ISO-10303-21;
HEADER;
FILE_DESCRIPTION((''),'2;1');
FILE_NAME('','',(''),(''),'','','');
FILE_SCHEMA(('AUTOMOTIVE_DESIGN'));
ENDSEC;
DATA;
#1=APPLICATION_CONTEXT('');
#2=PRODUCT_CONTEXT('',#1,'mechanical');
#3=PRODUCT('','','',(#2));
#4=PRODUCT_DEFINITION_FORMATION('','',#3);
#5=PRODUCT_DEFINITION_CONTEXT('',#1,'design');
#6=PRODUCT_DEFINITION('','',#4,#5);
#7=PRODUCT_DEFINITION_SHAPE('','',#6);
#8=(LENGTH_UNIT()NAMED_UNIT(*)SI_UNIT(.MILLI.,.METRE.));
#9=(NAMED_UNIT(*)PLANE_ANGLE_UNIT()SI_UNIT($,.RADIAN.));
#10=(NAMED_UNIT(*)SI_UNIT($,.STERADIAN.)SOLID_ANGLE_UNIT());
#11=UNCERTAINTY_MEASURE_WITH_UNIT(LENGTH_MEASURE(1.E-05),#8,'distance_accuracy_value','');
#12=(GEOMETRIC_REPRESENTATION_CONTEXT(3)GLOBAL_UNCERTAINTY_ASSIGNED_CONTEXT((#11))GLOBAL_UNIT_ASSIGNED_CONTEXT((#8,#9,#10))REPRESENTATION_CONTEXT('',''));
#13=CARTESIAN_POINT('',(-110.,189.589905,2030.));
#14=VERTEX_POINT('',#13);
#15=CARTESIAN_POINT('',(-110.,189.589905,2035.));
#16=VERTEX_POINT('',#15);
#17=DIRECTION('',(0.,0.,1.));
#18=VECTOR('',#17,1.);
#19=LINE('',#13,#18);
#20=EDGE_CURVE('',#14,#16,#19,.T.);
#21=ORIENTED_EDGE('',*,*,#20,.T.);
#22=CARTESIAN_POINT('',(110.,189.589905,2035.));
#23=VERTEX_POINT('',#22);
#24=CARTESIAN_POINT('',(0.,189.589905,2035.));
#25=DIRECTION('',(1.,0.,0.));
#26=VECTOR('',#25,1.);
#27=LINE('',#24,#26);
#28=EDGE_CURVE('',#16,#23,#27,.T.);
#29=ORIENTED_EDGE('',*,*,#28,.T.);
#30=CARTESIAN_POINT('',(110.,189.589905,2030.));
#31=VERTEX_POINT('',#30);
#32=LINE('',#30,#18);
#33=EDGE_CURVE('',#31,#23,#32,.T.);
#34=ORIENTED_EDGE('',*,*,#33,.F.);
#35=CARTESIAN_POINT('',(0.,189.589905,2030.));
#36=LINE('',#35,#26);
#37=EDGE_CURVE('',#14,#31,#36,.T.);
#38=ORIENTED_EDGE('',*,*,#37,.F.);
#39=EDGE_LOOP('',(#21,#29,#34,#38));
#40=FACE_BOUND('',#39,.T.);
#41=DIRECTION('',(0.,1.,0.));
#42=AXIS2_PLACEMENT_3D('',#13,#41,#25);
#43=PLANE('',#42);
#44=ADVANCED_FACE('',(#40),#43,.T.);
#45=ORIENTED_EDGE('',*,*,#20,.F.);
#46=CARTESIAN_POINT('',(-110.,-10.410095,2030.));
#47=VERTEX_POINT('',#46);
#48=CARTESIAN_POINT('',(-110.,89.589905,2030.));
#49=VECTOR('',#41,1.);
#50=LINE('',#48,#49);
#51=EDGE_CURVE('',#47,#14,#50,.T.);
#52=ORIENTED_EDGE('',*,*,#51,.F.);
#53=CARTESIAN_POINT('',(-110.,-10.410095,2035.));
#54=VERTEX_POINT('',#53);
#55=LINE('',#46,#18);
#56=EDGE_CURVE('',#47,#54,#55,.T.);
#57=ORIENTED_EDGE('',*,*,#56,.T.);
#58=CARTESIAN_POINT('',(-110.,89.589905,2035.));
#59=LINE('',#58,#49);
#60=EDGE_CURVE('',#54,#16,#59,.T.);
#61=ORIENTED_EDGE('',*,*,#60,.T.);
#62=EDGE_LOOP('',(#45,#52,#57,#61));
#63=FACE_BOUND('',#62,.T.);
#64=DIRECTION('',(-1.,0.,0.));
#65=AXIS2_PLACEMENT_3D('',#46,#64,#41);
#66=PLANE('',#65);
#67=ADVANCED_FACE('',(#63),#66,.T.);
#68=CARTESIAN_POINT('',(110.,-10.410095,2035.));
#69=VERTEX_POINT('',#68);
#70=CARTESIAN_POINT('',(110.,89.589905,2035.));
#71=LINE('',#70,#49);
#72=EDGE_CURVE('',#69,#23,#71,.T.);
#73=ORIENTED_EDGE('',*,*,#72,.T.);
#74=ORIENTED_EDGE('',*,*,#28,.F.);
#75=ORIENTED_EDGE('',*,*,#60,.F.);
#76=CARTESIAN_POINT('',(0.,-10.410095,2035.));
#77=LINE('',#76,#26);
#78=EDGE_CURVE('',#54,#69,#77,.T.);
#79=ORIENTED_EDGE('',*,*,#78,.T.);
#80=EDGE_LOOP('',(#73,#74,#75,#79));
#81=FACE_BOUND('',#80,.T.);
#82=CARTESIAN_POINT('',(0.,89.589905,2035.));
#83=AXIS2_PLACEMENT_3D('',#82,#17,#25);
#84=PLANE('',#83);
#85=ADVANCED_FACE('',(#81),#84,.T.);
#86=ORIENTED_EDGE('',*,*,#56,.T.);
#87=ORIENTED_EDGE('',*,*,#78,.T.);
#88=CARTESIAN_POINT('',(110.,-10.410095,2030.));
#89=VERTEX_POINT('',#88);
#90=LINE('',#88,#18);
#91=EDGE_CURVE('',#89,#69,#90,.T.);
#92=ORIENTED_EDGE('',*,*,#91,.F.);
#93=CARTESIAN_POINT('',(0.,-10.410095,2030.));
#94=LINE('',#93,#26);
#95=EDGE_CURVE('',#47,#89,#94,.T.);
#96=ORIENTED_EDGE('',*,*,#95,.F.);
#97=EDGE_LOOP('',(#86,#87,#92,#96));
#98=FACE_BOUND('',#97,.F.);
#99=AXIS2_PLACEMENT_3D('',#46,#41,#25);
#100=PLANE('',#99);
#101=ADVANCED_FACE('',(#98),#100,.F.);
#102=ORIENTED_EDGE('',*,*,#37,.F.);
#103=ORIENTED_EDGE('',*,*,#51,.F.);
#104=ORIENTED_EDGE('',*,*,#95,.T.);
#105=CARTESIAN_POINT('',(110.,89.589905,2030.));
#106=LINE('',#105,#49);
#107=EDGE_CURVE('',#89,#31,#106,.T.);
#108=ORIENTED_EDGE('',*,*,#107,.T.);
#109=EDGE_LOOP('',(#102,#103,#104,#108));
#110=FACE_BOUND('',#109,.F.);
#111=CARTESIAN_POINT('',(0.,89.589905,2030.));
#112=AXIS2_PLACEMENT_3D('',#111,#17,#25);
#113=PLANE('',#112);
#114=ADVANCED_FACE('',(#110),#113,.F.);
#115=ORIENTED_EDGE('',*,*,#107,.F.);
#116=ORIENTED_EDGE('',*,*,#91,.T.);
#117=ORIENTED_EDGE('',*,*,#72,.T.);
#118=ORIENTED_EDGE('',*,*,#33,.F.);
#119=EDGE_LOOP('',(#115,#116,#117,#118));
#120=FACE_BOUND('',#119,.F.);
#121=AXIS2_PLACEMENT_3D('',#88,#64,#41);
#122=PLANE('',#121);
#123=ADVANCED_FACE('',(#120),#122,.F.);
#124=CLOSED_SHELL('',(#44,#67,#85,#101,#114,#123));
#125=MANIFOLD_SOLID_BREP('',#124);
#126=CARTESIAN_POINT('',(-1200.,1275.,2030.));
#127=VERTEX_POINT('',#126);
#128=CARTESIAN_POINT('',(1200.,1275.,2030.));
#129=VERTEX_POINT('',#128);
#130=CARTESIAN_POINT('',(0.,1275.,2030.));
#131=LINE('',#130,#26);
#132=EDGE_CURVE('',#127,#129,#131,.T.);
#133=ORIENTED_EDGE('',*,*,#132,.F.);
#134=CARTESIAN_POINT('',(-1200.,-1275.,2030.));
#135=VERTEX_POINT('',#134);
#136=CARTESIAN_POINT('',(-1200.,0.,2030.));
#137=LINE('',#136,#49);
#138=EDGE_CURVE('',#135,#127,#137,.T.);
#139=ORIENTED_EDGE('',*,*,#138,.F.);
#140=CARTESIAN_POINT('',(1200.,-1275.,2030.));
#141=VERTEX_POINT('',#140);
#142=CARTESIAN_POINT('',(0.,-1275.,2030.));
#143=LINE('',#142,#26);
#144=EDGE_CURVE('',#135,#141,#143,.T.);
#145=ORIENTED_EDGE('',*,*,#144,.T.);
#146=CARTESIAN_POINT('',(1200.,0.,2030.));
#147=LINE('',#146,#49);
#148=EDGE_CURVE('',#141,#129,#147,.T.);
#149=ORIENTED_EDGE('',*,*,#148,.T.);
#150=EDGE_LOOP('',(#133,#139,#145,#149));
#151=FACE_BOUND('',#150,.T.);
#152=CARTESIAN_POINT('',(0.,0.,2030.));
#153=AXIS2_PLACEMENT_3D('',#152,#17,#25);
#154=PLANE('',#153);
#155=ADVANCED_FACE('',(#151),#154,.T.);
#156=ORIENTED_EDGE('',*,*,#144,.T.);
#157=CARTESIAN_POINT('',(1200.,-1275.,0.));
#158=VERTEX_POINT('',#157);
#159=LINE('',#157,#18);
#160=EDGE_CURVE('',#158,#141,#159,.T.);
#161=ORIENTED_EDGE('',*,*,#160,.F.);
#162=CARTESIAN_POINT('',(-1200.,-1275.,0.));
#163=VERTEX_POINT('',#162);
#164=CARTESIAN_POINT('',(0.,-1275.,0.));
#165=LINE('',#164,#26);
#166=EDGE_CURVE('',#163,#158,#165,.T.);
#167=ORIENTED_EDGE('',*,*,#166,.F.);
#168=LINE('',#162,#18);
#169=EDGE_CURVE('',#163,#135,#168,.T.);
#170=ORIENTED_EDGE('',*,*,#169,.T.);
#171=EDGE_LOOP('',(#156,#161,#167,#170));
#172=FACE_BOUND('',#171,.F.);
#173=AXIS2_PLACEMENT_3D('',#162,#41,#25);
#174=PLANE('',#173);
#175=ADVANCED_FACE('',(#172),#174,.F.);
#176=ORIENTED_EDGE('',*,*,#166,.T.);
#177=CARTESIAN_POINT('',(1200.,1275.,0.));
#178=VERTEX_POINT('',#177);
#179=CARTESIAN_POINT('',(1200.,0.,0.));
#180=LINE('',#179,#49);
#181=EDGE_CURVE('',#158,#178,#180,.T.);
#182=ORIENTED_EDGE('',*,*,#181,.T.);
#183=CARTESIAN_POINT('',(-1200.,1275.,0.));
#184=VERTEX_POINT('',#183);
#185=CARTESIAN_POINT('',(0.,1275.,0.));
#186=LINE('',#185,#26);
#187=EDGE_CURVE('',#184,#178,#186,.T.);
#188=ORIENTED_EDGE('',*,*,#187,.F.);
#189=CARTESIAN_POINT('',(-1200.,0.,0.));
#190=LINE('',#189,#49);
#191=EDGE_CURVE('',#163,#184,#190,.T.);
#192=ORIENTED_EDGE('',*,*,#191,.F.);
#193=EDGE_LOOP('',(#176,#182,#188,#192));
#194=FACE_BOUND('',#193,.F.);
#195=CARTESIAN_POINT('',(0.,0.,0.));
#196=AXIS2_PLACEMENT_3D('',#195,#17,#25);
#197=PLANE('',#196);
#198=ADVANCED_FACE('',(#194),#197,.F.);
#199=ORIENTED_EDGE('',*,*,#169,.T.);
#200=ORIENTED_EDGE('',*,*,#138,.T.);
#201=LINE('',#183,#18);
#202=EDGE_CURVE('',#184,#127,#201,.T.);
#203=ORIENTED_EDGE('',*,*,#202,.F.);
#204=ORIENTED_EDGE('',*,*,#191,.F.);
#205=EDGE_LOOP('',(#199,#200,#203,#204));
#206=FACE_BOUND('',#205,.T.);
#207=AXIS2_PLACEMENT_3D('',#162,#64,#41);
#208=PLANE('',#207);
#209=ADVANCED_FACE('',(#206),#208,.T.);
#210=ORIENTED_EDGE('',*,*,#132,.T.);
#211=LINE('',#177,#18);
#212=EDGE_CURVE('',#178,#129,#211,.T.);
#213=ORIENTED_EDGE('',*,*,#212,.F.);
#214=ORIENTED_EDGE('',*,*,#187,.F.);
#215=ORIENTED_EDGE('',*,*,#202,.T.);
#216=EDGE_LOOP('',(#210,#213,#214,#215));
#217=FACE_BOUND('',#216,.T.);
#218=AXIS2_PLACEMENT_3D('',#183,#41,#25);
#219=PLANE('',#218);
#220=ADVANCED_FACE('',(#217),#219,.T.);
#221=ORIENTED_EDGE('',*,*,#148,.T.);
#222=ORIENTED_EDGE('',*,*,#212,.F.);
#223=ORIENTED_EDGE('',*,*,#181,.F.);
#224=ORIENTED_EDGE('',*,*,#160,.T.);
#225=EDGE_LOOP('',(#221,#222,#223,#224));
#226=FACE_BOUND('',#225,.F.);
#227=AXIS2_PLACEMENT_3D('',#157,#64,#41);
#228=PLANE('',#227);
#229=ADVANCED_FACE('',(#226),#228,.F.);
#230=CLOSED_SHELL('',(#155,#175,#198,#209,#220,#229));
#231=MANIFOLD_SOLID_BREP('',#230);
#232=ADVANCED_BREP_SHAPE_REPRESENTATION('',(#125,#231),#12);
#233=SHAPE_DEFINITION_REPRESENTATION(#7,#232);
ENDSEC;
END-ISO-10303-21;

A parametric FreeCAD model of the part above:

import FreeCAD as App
import Part
import Sketcher
Q = App.Units.Quantity


def add_polygon(sketch, points):
    """Adds a closed chain of lines whose ends are joined by coincident constraints."""
    first, n = sketch.GeometryCount, len(points)
    for a, b in zip(points, points[1:] + points[:1]):
        sketch.addGeometry(Part.LineSegment(App.Vector(*a, 0), App.Vector(*b, 0)), False)
    for i in range(n):
        sketch.addConstraint(Sketcher.Constraint("Coincident", first + i, 2, first + (i + 1) % n, 1))

doc = App.newDocument("Part")
body = doc.addObject("PartDesign::Body", "Body")

sketch1 = body.newObject("Sketcher::SketchObject", "Sketch")
sketch1.AttachmentSupport = (doc.getObject("XY_Plane"), [""])
sketch1.MapMode = "FlatFace"
add_polygon(sketch1, [(-1200, 1275), (-1200, -1275), (1200, -1275), (1200, 1275)])
sketch1.addConstraint(Sketcher.Constraint("Vertical", 0))
sketch1.addConstraint(Sketcher.Constraint("Horizontal", 1))
sketch1.addConstraint(Sketcher.Constraint("Vertical", 2))
sketch1.addConstraint(Sketcher.Constraint("Horizontal", 3))
sketch1.addConstraint(Sketcher.Constraint("Symmetric", 0, 2, 2, 2, -1, 1))
sketch1.addConstraint(Sketcher.Constraint("DistanceX", 1, 1, 1, 2, Q("2400 mm")))
sketch1.addConstraint(Sketcher.Constraint("DistanceY", 0, 2, 0, 1, Q("2550 mm")))
pad1 = body.newObject("PartDesign::Pad", "Pad")
pad1.Profile = sketch1
pad1.Length = 2030
body2 = doc.addObject("PartDesign::Body", "Body001")

sketch2 = body2.newObject("Sketcher::SketchObject", "Sketch001")
sketch2.AttachmentSupport = (doc.getObject("XY_Plane001"), [""])
sketch2.MapMode = "FlatFace"
sketch2.AttachmentOffset = App.Placement(App.Vector(0, 0, 2030), App.Rotation())
add_polygon(sketch2, [(-110, 190), (-110, -10), (110, -10), (110, 190)])
sketch2.addConstraint(Sketcher.Constraint("Vertical", 0))
sketch2.addConstraint(Sketcher.Constraint("Horizontal", 1))
sketch2.addConstraint(Sketcher.Constraint("Vertical", 2))
sketch2.addConstraint(Sketcher.Constraint("Horizontal", 3))
sketch2.addConstraint(Sketcher.Constraint("DistanceX", 1, 1, 1, 2, Q("220 mm")))
sketch2.addConstraint(Sketcher.Constraint("DistanceY", 0, 2, 0, 1, Q("200 mm")))
sketch2.addConstraint(Sketcher.Constraint("DistanceX", 0, 2, -1, 1, Q("110 mm")))
sketch2.addConstraint(Sketcher.Constraint("DistanceY", 0, 2, -1, 1, Q("10.410095 mm")))
pad2 = body2.newObject("PartDesign::Pad", "Pad001")
pad2.Profile = sketch2
pad2.Length = 5

doc.recompute()
